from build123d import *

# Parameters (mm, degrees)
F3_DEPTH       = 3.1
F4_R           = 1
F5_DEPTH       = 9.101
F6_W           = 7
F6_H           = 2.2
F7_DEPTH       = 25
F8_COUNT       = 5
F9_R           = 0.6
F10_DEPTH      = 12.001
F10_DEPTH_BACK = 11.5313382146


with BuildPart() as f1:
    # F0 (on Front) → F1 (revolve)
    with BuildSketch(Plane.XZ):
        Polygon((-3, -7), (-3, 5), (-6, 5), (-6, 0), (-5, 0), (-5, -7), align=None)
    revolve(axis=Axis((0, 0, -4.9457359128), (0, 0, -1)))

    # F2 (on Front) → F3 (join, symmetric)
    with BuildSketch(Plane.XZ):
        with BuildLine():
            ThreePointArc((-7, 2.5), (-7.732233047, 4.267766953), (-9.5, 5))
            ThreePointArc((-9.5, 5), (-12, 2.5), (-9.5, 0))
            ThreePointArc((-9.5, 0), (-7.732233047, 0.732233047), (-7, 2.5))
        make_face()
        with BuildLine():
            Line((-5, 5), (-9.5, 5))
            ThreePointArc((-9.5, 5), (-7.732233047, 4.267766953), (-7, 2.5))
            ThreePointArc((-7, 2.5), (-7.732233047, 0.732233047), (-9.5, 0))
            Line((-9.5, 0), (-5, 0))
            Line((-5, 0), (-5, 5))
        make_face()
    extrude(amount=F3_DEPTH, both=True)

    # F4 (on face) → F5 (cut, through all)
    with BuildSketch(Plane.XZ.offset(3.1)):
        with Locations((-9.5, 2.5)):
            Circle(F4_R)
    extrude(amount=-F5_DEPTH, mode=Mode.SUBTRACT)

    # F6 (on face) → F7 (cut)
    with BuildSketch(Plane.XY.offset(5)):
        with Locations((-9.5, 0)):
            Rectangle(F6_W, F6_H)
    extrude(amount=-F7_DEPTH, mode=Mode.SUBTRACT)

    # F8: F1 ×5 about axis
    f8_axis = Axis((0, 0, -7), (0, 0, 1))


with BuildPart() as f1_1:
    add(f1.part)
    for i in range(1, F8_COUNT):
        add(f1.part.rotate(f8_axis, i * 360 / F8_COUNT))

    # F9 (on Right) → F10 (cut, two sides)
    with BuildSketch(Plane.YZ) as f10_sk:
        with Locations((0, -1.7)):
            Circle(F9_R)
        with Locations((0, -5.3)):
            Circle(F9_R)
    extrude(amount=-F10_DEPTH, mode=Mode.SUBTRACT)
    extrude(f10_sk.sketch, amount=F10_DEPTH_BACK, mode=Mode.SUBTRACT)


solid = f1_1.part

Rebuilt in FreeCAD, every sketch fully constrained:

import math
import FreeCAD as App
import Part
import Sketcher
Q = App.Units.Quantity


def add_polygon(sketch, points):
    """Adds a closed chain of lines whose ends are joined by coincident constraints."""
    first, n = sketch.GeometryCount, len(points)
    for a, b in zip(points, points[1:] + points[:1]):
        sketch.addGeometry(Part.LineSegment(App.Vector(*a, 0), App.Vector(*b, 0)), False)
    for i in range(n):
        sketch.addConstraint(Sketcher.Constraint("Coincident", first + i, 2, first + (i + 1) % n, 1))

doc = App.newDocument("Part")
body = doc.addObject("PartDesign::Body", "Body")

# Sketch on XZ plane
sketch1 = doc.addObject("Sketcher::SketchObject", "Sketch")
body.addObject(sketch1)
sketch1.AttachmentSupport = (doc.XZ_Plane, [""])
sketch1.MapMode = "FlatFace"
add_polygon(sketch1, [(-3, -7), (-3, 5), (-6, 5), (-6, 0), (-5, 0), (-5, -7)])  # lines 0-5
sketch1.addConstraint([
    Sketcher.Constraint("Vertical", 0),
    Sketcher.Constraint("Horizontal", 1),
    Sketcher.Constraint("Vertical", 2),
    Sketcher.Constraint("Horizontal", 3),
    Sketcher.Constraint("Vertical", 4),
    Sketcher.Constraint("Horizontal", 5),
    Sketcher.Constraint("PointOnObject", 2, 2, -1),
    Sketcher.Constraint("DistanceX", 1, 2, 1, 1, Q("3 mm")),
    Sketcher.Constraint("DistanceX", 3, 1, 3, 2, Q("1 mm")),
    Sketcher.Constraint("DistanceY", 0, 1, 0, 2, Q("12 mm")),
    Sketcher.Constraint("DistanceY", 2, 2, 2, 1, Q("5 mm")),
    Sketcher.Constraint("DistanceX", 0, 2, -1, 1, Q("3 mm")),
])
revolution = doc.addObject("PartDesign::Revolution", "Revolution")
body.addObject(revolution)
revolution.Profile = sketch1
revolution.ReferenceAxis = (sketch1, ["V_Axis"])
revolution.Angle = 360

# Sketch on XZ plane
sketch2 = doc.addObject("Sketcher::SketchObject", "Sketch001")
body.addObject(sketch2)
sketch2.AttachmentSupport = (doc.XZ_Plane, [""])
sketch2.MapMode = "FlatFace"
sketch2.addGeometry([
    Part.ArcOfCircle(Part.Circle(App.Vector(-9.5, 2.5, 0), App.Vector(0, 0, 1), 2.5), math.radians(90), math.radians(270)),
    Part.LineSegment(App.Vector(-9.5, 0, 0), App.Vector(-5, 0, 0)),
    Part.LineSegment(App.Vector(-5, 0, 0), App.Vector(-5, 5, 0)),
    Part.LineSegment(App.Vector(-5, 5, 0), App.Vector(-9.5, 5, 0)),
], False)
sketch2.addConstraint([
    Sketcher.Constraint("Tangent", 0, 2, 1, 1),
    Sketcher.Constraint("Coincident", 1, 2, 2, 1),
    Sketcher.Constraint("Coincident", 2, 2, 3, 1),
    Sketcher.Constraint("Tangent", 3, 2, 0, 1),
    Sketcher.Constraint("Horizontal", 1),
    Sketcher.Constraint("Vertical", 2),
    Sketcher.Constraint("Horizontal", 3),
    Sketcher.Constraint("PointOnObject", 0, 2, -1),
    Sketcher.Constraint("Radius", 0, Q("2.5 mm")),
    Sketcher.Constraint("DistanceX", 1, 1, 1, 2, Q("4.5 mm")),
    Sketcher.Constraint("DistanceX", 1, 2, -1, 1, Q("5 mm")),
])
pad1 = doc.addObject("PartDesign::Pad", "Pad")
body.addObject(pad1)
pad1.Profile = sketch2
pad1.Length = 6.2
pad1.Midplane = True

# Sketch on XZ plane
sketch3 = doc.addObject("Sketcher::SketchObject", "Sketch002")
body.addObject(sketch3)
sketch3.AttachmentSupport = (doc.XZ_Plane, [""])
sketch3.MapMode = "FlatFace"
sketch3.AttachmentOffset = App.Placement(App.Vector(0, 0, 3.1), App.Rotation())
sketch3.addGeometry(Part.Circle(App.Vector(-9.5, 2.5, 0), App.Vector(0, 0, 1), 1), False)
sketch3.addConstraint([
    Sketcher.Constraint("Diameter", 0, Q("2 mm")),
    Sketcher.Constraint("DistanceX", 0, 3, -1, 1, Q("9.5 mm")),
    Sketcher.Constraint("DistanceY", -1, 1, 0, 3, Q("2.5 mm")),
])
pocket1 = doc.addObject("PartDesign::Pocket", "Pocket")
body.addObject(pocket1)
pocket1.Profile = sketch3
pocket1.Type = "ThroughAll"

# Sketch on XY plane
sketch4 = doc.addObject("Sketcher::SketchObject", "Sketch003")
body.addObject(sketch4)
sketch4.AttachmentSupport = (doc.XY_Plane, [""])
sketch4.MapMode = "FlatFace"
sketch4.AttachmentOffset = App.Placement(App.Vector(0, 0, 5), App.Rotation())
add_polygon(sketch4, [(-13, 1.1), (-13, -1.1), (-6, -1.1), (-6, 1.1)])  # lines 0-3
sketch4.addConstraint([
    Sketcher.Constraint("Vertical", 0),
    Sketcher.Constraint("Horizontal", 1),
    Sketcher.Constraint("Vertical", 2),
    Sketcher.Constraint("Horizontal", 3),
    Sketcher.Constraint("DistanceX", 1, 1, 1, 2, Q("7 mm")),
    Sketcher.Constraint("DistanceY", 0, 2, 0, 1, Q("2.2 mm")),
    Sketcher.Constraint("DistanceX", 0, 2, -1, 1, Q("13 mm")),
    Sketcher.Constraint("DistanceY", 0, 2, -1, 1, Q("1.1 mm")),
])
pocket2 = doc.addObject("PartDesign::Pocket", "Pocket001")
body.addObject(pocket2)
pocket2.Profile = sketch4
pocket2.Length = 25
body2 = doc.addObject("PartDesign::Body", "Body001")
doc.recompute()

body2.BaseFeature = body
doc.recompute()

body3 = doc.addObject("PartDesign::Body", "Body002")
body3.BaseFeature = body
body3.Placement = App.Placement(App.Vector(0, 0, 0), App.Rotation(App.Vector(0, 0, 1), 72))
boolean = doc.addObject("PartDesign::Boolean", "Boolean")
body2.addObject(boolean)
boolean.Type = "Fuse"
boolean.addObjects([body3])
doc.recompute()

body4 = doc.addObject("PartDesign::Body", "Body003")
body4.BaseFeature = body
body4.Placement = App.Placement(App.Vector(0, 0, 0), App.Rotation(App.Vector(0, 0, 1), 144))
boolean2 = doc.addObject("PartDesign::Boolean", "Boolean001")
body2.addObject(boolean2)
boolean2.Type = "Fuse"
boolean2.addObjects([body4])
doc.recompute()

body5 = doc.addObject("PartDesign::Body", "Body004")
body5.BaseFeature = body
body5.Placement = App.Placement(App.Vector(0, 0, 0), App.Rotation(App.Vector(0, 0, 1), 216))
boolean3 = doc.addObject("PartDesign::Boolean", "Boolean002")
body2.addObject(boolean3)
boolean3.Type = "Fuse"
boolean3.addObjects([body5])
doc.recompute()

body.Placement = App.Placement(App.Vector(0, 0, 0), App.Rotation(App.Vector(0, 0, 1), 288))
boolean4 = doc.addObject("PartDesign::Boolean", "Boolean003")
body2.addObject(boolean4)
boolean4.Type = "Fuse"
boolean4.addObjects([body])

# Sketch on YZ plane
sketch5 = doc.addObject("Sketcher::SketchObject", "Sketch004")
body2.addObject(sketch5)
sketch5.AttachmentSupport = (doc.getObject("YZ_Plane001"), [""])
sketch5.MapMode = "FlatFace"
sketch5.addGeometry([
    Part.Circle(App.Vector(0, -1.7, 0), App.Vector(0, 0, 1), 0.6),
    Part.Circle(App.Vector(0, -5.3, 0), App.Vector(0, 0, 1), 0.6),
], False)
sketch5.addConstraint([
    Sketcher.Constraint("Equal", 0, 1),
    Sketcher.Constraint("PointOnObject", 0, 3, -2),
    Sketcher.Constraint("PointOnObject", 1, 3, -2),
    Sketcher.Constraint("Diameter", 0, Q("1.2 mm")),
    Sketcher.Constraint("DistanceY", 0, 3, -1, 1, Q("1.7 mm")),
    Sketcher.Constraint("DistanceY", 1, 3, -1, 1, Q("5.3 mm")),
])
pocket3 = doc.addObject("PartDesign::Pocket", "Pocket002")
body2.addObject(pocket3)
pocket3.Profile = sketch5
pocket3.Type = "ThroughAll"
pocket3.Midplane = True

doc.recompute()
